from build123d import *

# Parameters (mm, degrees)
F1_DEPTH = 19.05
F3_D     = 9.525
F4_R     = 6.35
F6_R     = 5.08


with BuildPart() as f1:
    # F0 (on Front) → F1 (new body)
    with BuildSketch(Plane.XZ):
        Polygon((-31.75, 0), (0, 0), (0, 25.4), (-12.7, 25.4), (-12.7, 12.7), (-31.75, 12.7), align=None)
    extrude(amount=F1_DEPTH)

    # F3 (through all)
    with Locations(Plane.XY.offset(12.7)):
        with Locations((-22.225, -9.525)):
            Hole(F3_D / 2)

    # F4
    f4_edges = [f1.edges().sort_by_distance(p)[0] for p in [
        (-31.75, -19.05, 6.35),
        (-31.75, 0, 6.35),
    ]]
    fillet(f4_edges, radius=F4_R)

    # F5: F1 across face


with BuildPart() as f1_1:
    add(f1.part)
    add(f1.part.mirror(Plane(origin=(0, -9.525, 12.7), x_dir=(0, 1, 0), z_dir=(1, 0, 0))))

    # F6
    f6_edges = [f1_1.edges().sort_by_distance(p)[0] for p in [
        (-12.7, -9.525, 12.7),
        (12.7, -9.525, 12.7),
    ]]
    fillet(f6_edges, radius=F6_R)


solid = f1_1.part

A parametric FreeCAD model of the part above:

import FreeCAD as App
import Part
import Sketcher
Q = App.Units.Quantity


def edges_at(feature, points):
    """Names of the edges that pass closest to the given points."""
    edges = feature.Shape.Edges
    near = lambda p: min(range(len(edges)), key=lambda i: edges[i].distToShape(Part.Vertex(*p))[0])
    return sorted({f"Edge{near(p) + 1}" for p in points})


def add_polygon(sketch, points):
    """Adds a closed chain of lines whose ends are joined by coincident constraints."""
    first, n = sketch.GeometryCount, len(points)
    for a, b in zip(points, points[1:] + points[:1]):
        sketch.addGeometry(Part.LineSegment(App.Vector(*a, 0), App.Vector(*b, 0)), False)
    for i in range(n):
        sketch.addConstraint(Sketcher.Constraint("Coincident", first + i, 2, first + (i + 1) % n, 1))

doc = App.newDocument("Part")
body = doc.addObject("PartDesign::Body", "Body")

# Sketch on XZ plane
sketch1 = body.newObject("Sketcher::SketchObject", "Sketch")
sketch1.AttachmentSupport = (doc.getObject("XZ_Plane"), [""])
sketch1.MapMode = "FlatFace"
add_polygon(sketch1, [(-32, 0), (0, 0), (0, 25), (-13, 25), (-13, 13), (-32, 13)])  # lines 0-5
sketch1.addConstraint([
    Sketcher.Constraint("Horizontal", 0),
    Sketcher.Constraint("Vertical", 1),
    Sketcher.Constraint("Horizontal", 2),
    Sketcher.Constraint("Vertical", 3),
    Sketcher.Constraint("Horizontal", 4),
    Sketcher.Constraint("Vertical", 5),
    Sketcher.Constraint("Coincident", 0, 2, -1, 1),
    Sketcher.Constraint("Equal", 2, 3),
    Sketcher.Constraint("Equal", 3, 5),
    Sketcher.Constraint("DistanceY", 1, 1, 1, 2, Q("1 in")),
    Sketcher.Constraint("DistanceX", 0, 1, 0, 2, Q("1.25 in")),
])
pad1 = body.newObject("PartDesign::Pad", "Pad")
pad1.Profile = sketch1
pad1.Length = Q("0.75 in")

# Sketch on XY plane
sketch2 = body.newObject("Sketcher::SketchObject", "Sketch001")
sketch2.AttachmentSupport = (doc.getObject("XY_Plane"), [""])
sketch2.MapMode = "FlatFace"
sketch2.AttachmentOffset = App.Placement(App.Vector(0, 0, 0.5 * 25.4), App.Rotation())
sketch2.addGeometry(Part.Circle(App.Vector(-22.2, -9.5, 0), App.Vector(0, 0, 1), 4.8), False)
sketch2.addConstraint([
    Sketcher.Constraint("Diameter", 0, Q("0.375 in")),
    Sketcher.Constraint("DistanceX", 0, 3, -1, 1, Q("0.875 in")),
    Sketcher.Constraint("DistanceY", 0, 3, -1, 1, Q("0.375 in")),
])
doc.recompute()
hole = body.newObject("PartDesign::Hole", "Hole")
hole.Profile = sketch2
hole.ThreadType = "None"
hole.Diameter = Q("0.375 in")
hole.DepthType = "ThroughAll"
doc.recompute()

fillet = body.newObject("PartDesign::Fillet", "Fillet")
fillet.Base = (hole, edges_at(hole, [(-31.75, -19.05, 6.35), (-31.75, 0, 6.35)]))
fillet.Radius = Q("0.25 in")
body2 = doc.addObject("PartDesign::Body", "Body001")
doc.recompute()

body2.BaseFeature = body
doc.recompute()

mirroring = doc.addObject("Part::Mirroring", "Mirroring")
mirroring.Source = body
mirroring.Base = App.Vector(0, -9.525, 12.7)
mirroring.Normal = App.Vector(1, 0, 0)
body3 = doc.addObject("PartDesign::Body", "Body002")
body3.BaseFeature = mirroring
boolean = body2.newObject("PartDesign::Boolean", "Boolean")
boolean.Type = "Fuse"
boolean.addObjects([body3])
doc.recompute()

fillet2 = body2.newObject("PartDesign::Fillet", "Fillet001")
fillet2.Base = (boolean, edges_at(boolean, [(-12.7, -9.525, 12.7), (12.7, -9.525, 12.7)]))
fillet2.Radius = Q("0.2 in")
mirroring.Visibility = False

doc.recompute()
